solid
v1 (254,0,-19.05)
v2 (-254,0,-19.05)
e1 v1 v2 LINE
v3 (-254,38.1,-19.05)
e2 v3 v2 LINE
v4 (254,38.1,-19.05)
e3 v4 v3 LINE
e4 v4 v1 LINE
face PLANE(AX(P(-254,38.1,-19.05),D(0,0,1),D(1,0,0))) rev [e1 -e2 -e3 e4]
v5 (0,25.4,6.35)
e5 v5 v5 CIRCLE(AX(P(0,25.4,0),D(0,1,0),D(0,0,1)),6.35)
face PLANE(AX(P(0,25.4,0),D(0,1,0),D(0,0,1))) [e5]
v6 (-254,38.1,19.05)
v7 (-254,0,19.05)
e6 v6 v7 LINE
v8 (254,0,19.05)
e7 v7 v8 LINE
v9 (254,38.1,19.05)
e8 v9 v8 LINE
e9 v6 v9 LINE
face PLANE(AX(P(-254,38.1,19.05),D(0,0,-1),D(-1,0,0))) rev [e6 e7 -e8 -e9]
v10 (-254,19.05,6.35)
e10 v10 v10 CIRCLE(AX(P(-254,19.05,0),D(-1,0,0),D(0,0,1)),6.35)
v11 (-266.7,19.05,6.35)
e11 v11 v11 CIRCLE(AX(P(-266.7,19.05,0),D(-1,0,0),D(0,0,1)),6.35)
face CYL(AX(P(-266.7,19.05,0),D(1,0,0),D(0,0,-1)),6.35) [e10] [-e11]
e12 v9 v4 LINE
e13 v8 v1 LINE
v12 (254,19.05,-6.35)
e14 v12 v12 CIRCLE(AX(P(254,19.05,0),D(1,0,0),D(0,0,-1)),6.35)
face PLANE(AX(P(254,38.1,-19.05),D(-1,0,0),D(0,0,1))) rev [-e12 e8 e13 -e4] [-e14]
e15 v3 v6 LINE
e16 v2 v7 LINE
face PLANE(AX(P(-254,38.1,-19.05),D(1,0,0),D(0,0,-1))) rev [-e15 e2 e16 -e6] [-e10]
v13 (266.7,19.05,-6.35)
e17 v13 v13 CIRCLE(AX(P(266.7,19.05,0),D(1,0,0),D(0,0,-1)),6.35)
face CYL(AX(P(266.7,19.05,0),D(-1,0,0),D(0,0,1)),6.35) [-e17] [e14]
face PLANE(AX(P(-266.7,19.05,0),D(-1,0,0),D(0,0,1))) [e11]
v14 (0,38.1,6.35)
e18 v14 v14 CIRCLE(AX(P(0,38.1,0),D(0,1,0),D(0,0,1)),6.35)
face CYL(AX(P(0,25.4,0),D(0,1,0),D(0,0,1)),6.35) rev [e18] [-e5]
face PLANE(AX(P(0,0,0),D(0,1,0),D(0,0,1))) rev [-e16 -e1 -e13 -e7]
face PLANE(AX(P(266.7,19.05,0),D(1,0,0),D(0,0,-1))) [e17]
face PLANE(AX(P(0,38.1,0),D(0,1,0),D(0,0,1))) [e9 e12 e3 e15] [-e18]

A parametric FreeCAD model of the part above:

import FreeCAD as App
import Part
import Sketcher
Q = App.Units.Quantity


def add_polygon(sketch, points):
    """Adds a closed chain of lines whose ends are joined by coincident constraints."""
    first, n = sketch.GeometryCount, len(points)
    for a, b in zip(points, points[1:] + points[:1]):
        sketch.addGeometry(Part.LineSegment(App.Vector(*a, 0), App.Vector(*b, 0)), False)
    for i in range(n):
        sketch.addConstraint(Sketcher.Constraint("Coincident", first + i, 2, first + (i + 1) % n, 1))

doc = App.newDocument("Part")
body = doc.addObject("PartDesign::Body", "Body")

sketch1 = doc.addObject("Sketcher::SketchObject", "Sketch")
body.addObject(sketch1)
sketch1.AttachmentSupport = (doc.XZ_Plane, [""])
sketch1.MapMode = "FlatFace"
add_polygon(sketch1, [(-254, -19), (-254, 19), (254, 19), (254, -19)])
sketch1.addConstraint(Sketcher.Constraint("Vertical", 0))
sketch1.addConstraint(Sketcher.Constraint("Horizontal", 1))
sketch1.addConstraint(Sketcher.Constraint("Vertical", 2))
sketch1.addConstraint(Sketcher.Constraint("Horizontal", 3))
sketch1.addConstraint(Sketcher.Constraint("Symmetric", 0, 2, 2, 2, -1, 1))
sketch1.addConstraint(Sketcher.Constraint("DistanceX", 1, 1, 1, 2, Q("20 in")))
sketch1.addConstraint(Sketcher.Constraint("DistanceY", 0, 1, 0, 2, Q("1.5 in")))
pad1 = doc.addObject("PartDesign::Pad", "Pad")
body.addObject(pad1)
pad1.Profile = sketch1
pad1.Length = Q("1.5 in")
pad1.Reversed = True

sketch2 = doc.addObject("Sketcher::SketchObject", "Sketch001")
body.addObject(sketch2)
sketch2.AttachmentSupport = (doc.YZ_Plane, [""])
sketch2.MapMode = "FlatFace"
sketch2.AttachmentOffset = App.Placement(App.Vector(0, 0, -10 * 25.4), App.Rotation())
sketch2.addGeometry(Part.Circle(App.Vector(19, 0, 0), App.Vector(0, 0, 1), 6), False)
sketch2.addConstraint(Sketcher.Constraint("PointOnObject", 0, 3, -1))
sketch2.addConstraint(Sketcher.Constraint("Diameter", 0, Q("0.5 in")))
sketch2.addConstraint(Sketcher.Constraint("DistanceX", -1, 1, 0, 3, Q("0.75 in")))
pad2 = doc.addObject("PartDesign::Pad", "Pad001")
body.addObject(pad2)
pad2.Profile = sketch2
pad2.Length = Q("0.5 in")
pad2.Reversed = True

sketch3 = doc.addObject("Sketcher::SketchObject", "Sketch002")
body.addObject(sketch3)
sketch3.AttachmentSupport = (doc.YZ_Plane, [""])
sketch3.MapMode = "FlatFace"
sketch3.AttachmentOffset = App.Placement(App.Vector(0, 0, 10 * 25.4), App.Rotation())
sketch3.addGeometry(Part.Circle(App.Vector(19, 0, 0), App.Vector(0, 0, 1), 6), False)
sketch3.addConstraint(Sketcher.Constraint("PointOnObject", 0, 3, -1))
sketch3.addConstraint(Sketcher.Constraint("Diameter", 0, Q("0.5 in")))
sketch3.addConstraint(Sketcher.Constraint("DistanceX", -1, 1, 0, 3, Q("0.75 in")))
pad3 = doc.addObject("PartDesign::Pad", "Pad002")
body.addObject(pad3)
pad3.Profile = sketch3
pad3.Length = Q("0.5 in")

sketch4 = doc.addObject("Sketcher::SketchObject", "Sketch003")
body.addObject(sketch4)
sketch4.AttachmentSupport = (doc.XZ_Plane, [""])
sketch4.MapMode = "FlatFace"
sketch4.AttachmentOffset = App.Placement(App.Vector(0, 0, -1.5 * 25.4), App.Rotation())
sketch4.addGeometry(Part.Circle(App.Vector(0, 0, 0), App.Vector(0, 0, 1), 6), False)
sketch4.addConstraint(Sketcher.Constraint("Coincident", 0, 3, -1, 1))
sketch4.addConstraint(Sketcher.Constraint("Diameter", 0, Q("0.5 in")))
pocket1 = doc.addObject("PartDesign::Pocket", "Pocket")
body.addObject(pocket1)
pocket1.Profile = sketch4
pocket1.Length = Q("0.5 in")
pocket1.Reversed = True

doc.recompute()
